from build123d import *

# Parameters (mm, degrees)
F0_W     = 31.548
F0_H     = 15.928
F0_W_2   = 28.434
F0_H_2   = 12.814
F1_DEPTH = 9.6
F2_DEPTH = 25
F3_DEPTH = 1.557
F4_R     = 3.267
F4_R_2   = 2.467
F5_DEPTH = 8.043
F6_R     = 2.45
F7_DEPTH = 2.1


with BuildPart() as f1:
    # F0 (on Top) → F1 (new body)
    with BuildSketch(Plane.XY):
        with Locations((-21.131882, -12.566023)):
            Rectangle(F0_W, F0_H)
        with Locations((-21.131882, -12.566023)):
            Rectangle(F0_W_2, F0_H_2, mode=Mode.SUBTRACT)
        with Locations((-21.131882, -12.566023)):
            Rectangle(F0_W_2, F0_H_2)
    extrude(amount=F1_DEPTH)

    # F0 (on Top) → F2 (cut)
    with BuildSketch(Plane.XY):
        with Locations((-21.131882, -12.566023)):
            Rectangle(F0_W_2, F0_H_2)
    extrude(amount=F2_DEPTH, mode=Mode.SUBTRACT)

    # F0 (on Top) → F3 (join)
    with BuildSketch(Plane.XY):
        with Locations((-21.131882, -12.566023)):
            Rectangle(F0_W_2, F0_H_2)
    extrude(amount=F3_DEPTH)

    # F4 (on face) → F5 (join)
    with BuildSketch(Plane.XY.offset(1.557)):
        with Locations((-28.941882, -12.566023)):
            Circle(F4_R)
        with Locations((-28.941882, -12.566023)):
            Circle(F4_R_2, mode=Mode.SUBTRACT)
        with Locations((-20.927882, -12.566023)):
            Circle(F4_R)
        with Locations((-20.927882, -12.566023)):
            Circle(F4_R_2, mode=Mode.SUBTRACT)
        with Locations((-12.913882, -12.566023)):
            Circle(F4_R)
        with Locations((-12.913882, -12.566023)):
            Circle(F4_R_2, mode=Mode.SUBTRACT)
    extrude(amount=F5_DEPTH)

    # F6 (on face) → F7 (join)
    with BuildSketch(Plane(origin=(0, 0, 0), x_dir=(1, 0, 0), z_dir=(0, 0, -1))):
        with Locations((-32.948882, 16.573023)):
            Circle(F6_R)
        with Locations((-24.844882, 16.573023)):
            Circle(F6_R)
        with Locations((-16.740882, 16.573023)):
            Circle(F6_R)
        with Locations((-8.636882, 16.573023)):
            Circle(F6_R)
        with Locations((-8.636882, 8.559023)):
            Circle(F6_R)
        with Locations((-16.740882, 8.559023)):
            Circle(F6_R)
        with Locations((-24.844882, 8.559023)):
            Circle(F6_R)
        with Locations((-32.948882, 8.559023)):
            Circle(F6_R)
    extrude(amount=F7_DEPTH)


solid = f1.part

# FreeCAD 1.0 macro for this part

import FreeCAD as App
import Part
import Sketcher
Q = App.Units.Quantity


def add_polygon(sketch, points):
    """Adds a closed chain of lines whose ends are joined by coincident constraints."""
    first, n = sketch.GeometryCount, len(points)
    for a, b in zip(points, points[1:] + points[:1]):
        sketch.addGeometry(Part.LineSegment(App.Vector(*a, 0), App.Vector(*b, 0)), False)
    for i in range(n):
        sketch.addConstraint(Sketcher.Constraint("Coincident", first + i, 2, first + (i + 1) % n, 1))

doc = App.newDocument("Part")
params = doc.addObject("Spreadsheet::Sheet", "Params")
for row, (alias, value) in enumerate([
    ("pad1_length", "9.6 mm"),
    ("pocket1_length", "25 mm"),
    ("pad2_length", "1.557 mm"),
    ("pad3_length", "8.043 mm"),
    ("sketch5_diameter", "4.9 mm"),
    ("pad4_length", "2.1 mm"),
], start=1):
    params.set(f"A{row}", alias)
    params.set(f"B{row}", "=" + value)
    params.setAlias(f"B{row}", alias)

body = doc.addObject("PartDesign::Body", "Body")

sketch1 = body.newObject("Sketcher::SketchObject", "Sketch")
sketch1.AttachmentSupport = (doc.getObject("XY_Plane"), [""])
sketch1.MapMode = "FlatFace"
add_polygon(sketch1, [(-37, -5), (-37, -21), (-5, -21), (-5, -5)])
sketch1.addConstraint([
    Sketcher.Constraint("Vertical", 0),
    Sketcher.Constraint("Horizontal", 1),
    Sketcher.Constraint("Vertical", 2),
    Sketcher.Constraint("Horizontal", 3),
    Sketcher.Constraint("DistanceX", 1, 1, 1, 2, Q("31.548 mm")),
    Sketcher.Constraint("DistanceY", 0, 2, 0, 1, Q("15.928 mm")),
    Sketcher.Constraint("DistanceX", 0, 2, -1, 1, Q("36.905882 mm")),
    Sketcher.Constraint("DistanceY", 0, 2, -1, 1, Q("20.530023 mm")),
])
pad1 = body.newObject("PartDesign::Pad", "Pad")
pad1.Profile = sketch1
pad1.setExpression("Length", "Params.pad1_length")

sketch2 = body.newObject("Sketcher::SketchObject", "Sketch001")
sketch2.AttachmentSupport = (doc.getObject("XY_Plane"), [""])
sketch2.MapMode = "FlatFace"
add_polygon(sketch2, [(-35, -6), (-35, -19), (-7, -19), (-7, -6)])
sketch2.addConstraint([
    Sketcher.Constraint("Vertical", 0),
    Sketcher.Constraint("Horizontal", 1),
    Sketcher.Constraint("Vertical", 2),
    Sketcher.Constraint("Horizontal", 3),
    Sketcher.Constraint("DistanceX", 1, 1, 1, 2, Q("28.434 mm")),
    Sketcher.Constraint("DistanceY", 0, 2, 0, 1, Q("12.814 mm")),
    Sketcher.Constraint("DistanceX", 0, 2, -1, 1, Q("35.348882 mm")),
    Sketcher.Constraint("DistanceY", 0, 2, -1, 1, Q("18.973023 mm")),
])
pocket1 = body.newObject("PartDesign::Pocket", "Pocket")
pocket1.Profile = sketch2
pocket1.setExpression("Length", "Params.pocket1_length")
pocket1.Reversed = True

sketch3 = body.newObject("Sketcher::SketchObject", "Sketch002")
sketch3.AttachmentSupport = (doc.getObject("XY_Plane"), [""])
sketch3.MapMode = "FlatFace"
add_polygon(sketch3, [(-35, -6), (-35, -19), (-7, -19), (-7, -6)])
sketch3.addConstraint([
    Sketcher.Constraint("Vertical", 0),
    Sketcher.Constraint("Horizontal", 1),
    Sketcher.Constraint("Vertical", 2),
    Sketcher.Constraint("Horizontal", 3),
    Sketcher.Constraint("DistanceX", 1, 1, 1, 2, Q("28.434 mm")),
    Sketcher.Constraint("DistanceY", 0, 2, 0, 1, Q("12.814 mm")),
    Sketcher.Constraint("DistanceX", 0, 2, -1, 1, Q("35.348882 mm")),
    Sketcher.Constraint("DistanceY", 0, 2, -1, 1, Q("18.973023 mm")),
])
pad2 = body.newObject("PartDesign::Pad", "Pad001")
pad2.Profile = sketch3
pad2.setExpression("Length", "Params.pad2_length")

sketch4 = body.newObject("Sketcher::SketchObject", "Sketch003")
sketch4.AttachmentSupport = (doc.getObject("XY_Plane"), [""])
sketch4.MapMode = "FlatFace"
sketch4.AttachmentOffset = App.Placement(App.Vector(0, 0, 1.557), App.Rotation())
sketch4.addGeometry([
    Part.Circle(App.Vector(-28.9, -12.6, 0), App.Vector(0, 0, 1), 3.3),
    Part.Circle(App.Vector(-28.9, -12.6, 0), App.Vector(0, 0, 1), 2.5),
    Part.Circle(App.Vector(-20.9, -12.6, 0), App.Vector(0, 0, 1), 3.3),
    Part.Circle(App.Vector(-20.9, -12.6, 0), App.Vector(0, 0, 1), 2.5),
    Part.Circle(App.Vector(-12.9, -12.6, 0), App.Vector(0, 0, 1), 3.3),
    Part.Circle(App.Vector(-12.9, -12.6, 0), App.Vector(0, 0, 1), 2.5),
], False)
sketch4.addConstraint([
    Sketcher.Constraint("Coincident", 1, 3, 0, 3),
    Sketcher.Constraint("Coincident", 3, 3, 2, 3),
    Sketcher.Constraint("Coincident", 5, 3, 4, 3),
    Sketcher.Constraint("Equal", 0, 2),
    Sketcher.Constraint("Equal", 1, 3),
    Sketcher.Constraint("Equal", 2, 4),
    Sketcher.Constraint("Equal", 3, 5),
    Sketcher.Constraint("Horizontal", 1, 3, 2, 3),
    Sketcher.Constraint("Horizontal", 3, 3, 4, 3),
    Sketcher.Constraint("Diameter", 0, Q("6.534 mm")),
    Sketcher.Constraint("Diameter", 1, Q("4.934 mm")),
    Sketcher.Constraint("DistanceX", 0, 3, 2, 3, Q("8.014 mm")),
    Sketcher.Constraint("DistanceX", 2, 3, 4, 3, Q("8.014 mm")),
    Sketcher.Constraint("DistanceX", 0, 3, -1, 1, Q("28.941882 mm")),
    Sketcher.Constraint("DistanceY", 0, 3, -1, 1, Q("12.566023 mm")),
])
pad3 = body.newObject("PartDesign::Pad", "Pad002")
pad3.Profile = sketch4
pad3.setExpression("Length", "Params.pad3_length")

sketch5 = body.newObject("Sketcher::SketchObject", "Sketch004")
sketch5.AttachmentSupport = (doc.getObject("XY_Plane"), [""])
sketch5.MapMode = "FlatFace"
sketch5.addGeometry([
    Part.Circle(App.Vector(-32.9, -16.6, 0), App.Vector(0, 0, 1), 2.5),
    Part.Circle(App.Vector(-24.8, -16.6, 0), App.Vector(0, 0, 1), 2.5),
    Part.Circle(App.Vector(-16.7, -16.6, 0), App.Vector(0, 0, 1), 2.5),
    Part.Circle(App.Vector(-8.6, -16.6, 0), App.Vector(0, 0, 1), 2.5),
    Part.Circle(App.Vector(-8.6, -8.6, 0), App.Vector(0, 0, 1), 2.5),
    Part.Circle(App.Vector(-16.7, -8.6, 0), App.Vector(0, 0, 1), 2.5),
    Part.Circle(App.Vector(-24.8, -8.6, 0), App.Vector(0, 0, 1), 2.5),
    Part.Circle(App.Vector(-32.9, -8.6, 0), App.Vector(0, 0, 1), 2.5),
], False)
sketch5.addConstraint([
    Sketcher.Constraint("Equal", 0, 1),
    Sketcher.Constraint("Equal", 1, 2),
    Sketcher.Constraint("Equal", 2, 3),
    Sketcher.Constraint("Equal", 3, 4),
    Sketcher.Constraint("Equal", 4, 5),
    Sketcher.Constraint("Equal", 5, 6),
    Sketcher.Constraint("Equal", 6, 7),
    Sketcher.Constraint("Horizontal", 0, 3, 1, 3),
    Sketcher.Constraint("Horizontal", 1, 3, 2, 3),
    Sketcher.Constraint("Horizontal", 2, 3, 3, 3),
    Sketcher.Constraint("Horizontal", 4, 3, 5, 3),
    Sketcher.Constraint("Horizontal", 5, 3, 6, 3),
    Sketcher.Constraint("Horizontal", 6, 3, 7, 3),
    Sketcher.Constraint("Vertical", 3, 3, 4, 3),
    Sketcher.Constraint("Vertical", 2, 3, 5, 3),
    Sketcher.Constraint("Vertical", 1, 3, 6, 3),
    Sketcher.Constraint("Vertical", 0, 3, 7, 3),
    Sketcher.Constraint("Diameter", 0, Q("4.9 mm")),
    Sketcher.Constraint("DistanceX", 0, 3, 1, 3, Q("8.104 mm")),
    Sketcher.Constraint("DistanceX", 1, 3, 2, 3, Q("8.104 mm")),
    Sketcher.Constraint("DistanceX", 2, 3, 3, 3, Q("8.104 mm")),
    Sketcher.Constraint("DistanceY", 3, 3, 4, 3, Q("8.014 mm")),
    Sketcher.Constraint("DistanceX", 0, 3, -1, 1, Q("32.948882 mm")),
    Sketcher.Constraint("DistanceY", 0, 3, -1, 1, Q("16.573023 mm")),
])
sketch5.setExpression("Constraints[17]", "Params.sketch5_diameter")
pad4 = body.newObject("PartDesign::Pad", "Pad003")
pad4.Profile = sketch5
pad4.setExpression("Length", "Params.pad4_length")
pad4.Reversed = True

doc.recompute()
